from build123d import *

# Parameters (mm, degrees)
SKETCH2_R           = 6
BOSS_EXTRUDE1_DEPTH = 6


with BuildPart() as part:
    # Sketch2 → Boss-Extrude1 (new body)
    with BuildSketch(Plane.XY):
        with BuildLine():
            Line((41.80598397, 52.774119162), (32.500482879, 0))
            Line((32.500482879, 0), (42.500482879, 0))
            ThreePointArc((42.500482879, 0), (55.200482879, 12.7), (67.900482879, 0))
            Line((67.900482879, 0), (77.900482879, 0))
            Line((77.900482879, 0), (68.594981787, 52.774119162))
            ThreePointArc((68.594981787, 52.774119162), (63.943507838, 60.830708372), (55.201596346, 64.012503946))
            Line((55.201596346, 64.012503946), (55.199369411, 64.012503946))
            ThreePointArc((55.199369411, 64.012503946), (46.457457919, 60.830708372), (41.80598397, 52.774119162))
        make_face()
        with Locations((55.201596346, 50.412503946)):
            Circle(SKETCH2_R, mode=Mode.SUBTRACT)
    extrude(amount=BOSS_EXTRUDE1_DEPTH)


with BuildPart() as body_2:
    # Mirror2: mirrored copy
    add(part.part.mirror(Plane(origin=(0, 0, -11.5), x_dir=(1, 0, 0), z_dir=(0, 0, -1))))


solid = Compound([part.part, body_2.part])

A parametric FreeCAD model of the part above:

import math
import FreeCAD as App
import Part
import Sketcher

V = App.Vector
Q = App.Units.Quantity

doc = App.newDocument("Part")
body = doc.addObject("PartDesign::Body", "Body")

# Sketch on XY plane
sketch1 = body.newObject("Sketcher::SketchObject", "Sketch")
sketch1.AttachmentSupport = (doc.getObject("XY_Plane"), [""])
sketch1.MapMode = "FlatFace"
sketch1.addGeometry([
    Part.LineSegment(V(41.805984, 52.774119, 0), V(32.500483, 0, 0)),  # 0
    Part.LineSegment(V(32.500483, 0, 0), V(42.500483, 0, 0)),  # 1
    Part.ArcOfCircle(Part.Circle(V(55.200483, 0, 0), V(0, 0, 1), 12.7), math.radians(0), math.radians(180)),  # 2
    Part.LineSegment(V(67.900483, 0, 0), V(77.900483, 0, 0)),  # 3
    Part.LineSegment(V(77.900483, 0, 0), V(68.594982, 52.774119, 0)),  # 4
    Part.ArcOfCircle(Part.Circle(V(55.201596, 50.412504, 0), V(0, 0, 1), 13.6), math.radians(10), math.radians(90)),  # 5
    Part.LineSegment(V(55.201596, 64.012504, 0), V(55.199369, 64.012504, 0)),  # 6
    Part.ArcOfCircle(Part.Circle(V(55.199369, 50.412504, 0), V(0, 0, 1), 13.6), math.radians(90), math.radians(170)),  # 7
    Part.Circle(V(55.201596, 50.412504, 0), V(0, 0, 1), 6),  # 8
], False)
sketch1.addConstraint([
    Sketcher.Constraint("Coincident", 0, 2, 1, 1),
    Sketcher.Constraint("Coincident", 1, 2, 2, 2),
    Sketcher.Constraint("Coincident", 2, 1, 3, 1),
    Sketcher.Constraint("Coincident", 3, 2, 4, 1),
    Sketcher.Constraint("Tangent", 4, 2, 5, 1),
    Sketcher.Constraint("Tangent", 5, 2, 6, 1),
    Sketcher.Constraint("Coincident", 6, 2, 7, 1),
    Sketcher.Constraint("Tangent", 7, 2, 0, 1),
    Sketcher.Constraint("Horizontal", 1),
    Sketcher.Constraint("Horizontal", 3),
    Sketcher.Constraint("Coincident", 8, 3, 5, 3),
    Sketcher.Constraint("Equal", 5, 7),
    Sketcher.Constraint("PointOnObject", 2, 3, -1),
    Sketcher.Constraint("PointOnObject", 0, 2, -1),
    Sketcher.Constraint("PointOnObject", 2, 1, -1),
    Sketcher.Constraint("Horizontal", 4, 2, 7, 2),
    Sketcher.Constraint("Vertical", 8, 3, 5, 2),
    Sketcher.Constraint("Vertical", 7, 3, 6, 2),
    Sketcher.Constraint("Equal", 1, 3),
    Sketcher.Constraint("Diameter", 8, 12.0),
    Sketcher.Constraint("Radius", 2, 12.7),
    Sketcher.Constraint("Radius", 5, 13.6),
    Sketcher.Constraint("DistanceX", 1, 1, 1, 2, 10.0),
    Sketcher.Constraint("Angle", 0, Q("-100 deg")),
    Sketcher.Constraint("DistanceX", 2, 1, 4, 2, 0.694499),
    Sketcher.Constraint("DistanceX", -1, 1, 7, 3, 55.199369),
])
pad1 = body.newObject("PartDesign::Pad", "Pad")
pad1.Profile = sketch1
pad1.Length = 6
body2 = doc.addObject("PartDesign::Body", "Body001")
doc.recompute()

mirroring = doc.addObject("Part::Mirroring", "Mirroring")
mirroring.Source = body
mirroring.Base = V(0, 0, -11.5)
mirroring.Normal = V(0, 0, -1)
body2.BaseFeature = mirroring
doc.recompute()
mirroring.Visibility = False

doc.recompute()
